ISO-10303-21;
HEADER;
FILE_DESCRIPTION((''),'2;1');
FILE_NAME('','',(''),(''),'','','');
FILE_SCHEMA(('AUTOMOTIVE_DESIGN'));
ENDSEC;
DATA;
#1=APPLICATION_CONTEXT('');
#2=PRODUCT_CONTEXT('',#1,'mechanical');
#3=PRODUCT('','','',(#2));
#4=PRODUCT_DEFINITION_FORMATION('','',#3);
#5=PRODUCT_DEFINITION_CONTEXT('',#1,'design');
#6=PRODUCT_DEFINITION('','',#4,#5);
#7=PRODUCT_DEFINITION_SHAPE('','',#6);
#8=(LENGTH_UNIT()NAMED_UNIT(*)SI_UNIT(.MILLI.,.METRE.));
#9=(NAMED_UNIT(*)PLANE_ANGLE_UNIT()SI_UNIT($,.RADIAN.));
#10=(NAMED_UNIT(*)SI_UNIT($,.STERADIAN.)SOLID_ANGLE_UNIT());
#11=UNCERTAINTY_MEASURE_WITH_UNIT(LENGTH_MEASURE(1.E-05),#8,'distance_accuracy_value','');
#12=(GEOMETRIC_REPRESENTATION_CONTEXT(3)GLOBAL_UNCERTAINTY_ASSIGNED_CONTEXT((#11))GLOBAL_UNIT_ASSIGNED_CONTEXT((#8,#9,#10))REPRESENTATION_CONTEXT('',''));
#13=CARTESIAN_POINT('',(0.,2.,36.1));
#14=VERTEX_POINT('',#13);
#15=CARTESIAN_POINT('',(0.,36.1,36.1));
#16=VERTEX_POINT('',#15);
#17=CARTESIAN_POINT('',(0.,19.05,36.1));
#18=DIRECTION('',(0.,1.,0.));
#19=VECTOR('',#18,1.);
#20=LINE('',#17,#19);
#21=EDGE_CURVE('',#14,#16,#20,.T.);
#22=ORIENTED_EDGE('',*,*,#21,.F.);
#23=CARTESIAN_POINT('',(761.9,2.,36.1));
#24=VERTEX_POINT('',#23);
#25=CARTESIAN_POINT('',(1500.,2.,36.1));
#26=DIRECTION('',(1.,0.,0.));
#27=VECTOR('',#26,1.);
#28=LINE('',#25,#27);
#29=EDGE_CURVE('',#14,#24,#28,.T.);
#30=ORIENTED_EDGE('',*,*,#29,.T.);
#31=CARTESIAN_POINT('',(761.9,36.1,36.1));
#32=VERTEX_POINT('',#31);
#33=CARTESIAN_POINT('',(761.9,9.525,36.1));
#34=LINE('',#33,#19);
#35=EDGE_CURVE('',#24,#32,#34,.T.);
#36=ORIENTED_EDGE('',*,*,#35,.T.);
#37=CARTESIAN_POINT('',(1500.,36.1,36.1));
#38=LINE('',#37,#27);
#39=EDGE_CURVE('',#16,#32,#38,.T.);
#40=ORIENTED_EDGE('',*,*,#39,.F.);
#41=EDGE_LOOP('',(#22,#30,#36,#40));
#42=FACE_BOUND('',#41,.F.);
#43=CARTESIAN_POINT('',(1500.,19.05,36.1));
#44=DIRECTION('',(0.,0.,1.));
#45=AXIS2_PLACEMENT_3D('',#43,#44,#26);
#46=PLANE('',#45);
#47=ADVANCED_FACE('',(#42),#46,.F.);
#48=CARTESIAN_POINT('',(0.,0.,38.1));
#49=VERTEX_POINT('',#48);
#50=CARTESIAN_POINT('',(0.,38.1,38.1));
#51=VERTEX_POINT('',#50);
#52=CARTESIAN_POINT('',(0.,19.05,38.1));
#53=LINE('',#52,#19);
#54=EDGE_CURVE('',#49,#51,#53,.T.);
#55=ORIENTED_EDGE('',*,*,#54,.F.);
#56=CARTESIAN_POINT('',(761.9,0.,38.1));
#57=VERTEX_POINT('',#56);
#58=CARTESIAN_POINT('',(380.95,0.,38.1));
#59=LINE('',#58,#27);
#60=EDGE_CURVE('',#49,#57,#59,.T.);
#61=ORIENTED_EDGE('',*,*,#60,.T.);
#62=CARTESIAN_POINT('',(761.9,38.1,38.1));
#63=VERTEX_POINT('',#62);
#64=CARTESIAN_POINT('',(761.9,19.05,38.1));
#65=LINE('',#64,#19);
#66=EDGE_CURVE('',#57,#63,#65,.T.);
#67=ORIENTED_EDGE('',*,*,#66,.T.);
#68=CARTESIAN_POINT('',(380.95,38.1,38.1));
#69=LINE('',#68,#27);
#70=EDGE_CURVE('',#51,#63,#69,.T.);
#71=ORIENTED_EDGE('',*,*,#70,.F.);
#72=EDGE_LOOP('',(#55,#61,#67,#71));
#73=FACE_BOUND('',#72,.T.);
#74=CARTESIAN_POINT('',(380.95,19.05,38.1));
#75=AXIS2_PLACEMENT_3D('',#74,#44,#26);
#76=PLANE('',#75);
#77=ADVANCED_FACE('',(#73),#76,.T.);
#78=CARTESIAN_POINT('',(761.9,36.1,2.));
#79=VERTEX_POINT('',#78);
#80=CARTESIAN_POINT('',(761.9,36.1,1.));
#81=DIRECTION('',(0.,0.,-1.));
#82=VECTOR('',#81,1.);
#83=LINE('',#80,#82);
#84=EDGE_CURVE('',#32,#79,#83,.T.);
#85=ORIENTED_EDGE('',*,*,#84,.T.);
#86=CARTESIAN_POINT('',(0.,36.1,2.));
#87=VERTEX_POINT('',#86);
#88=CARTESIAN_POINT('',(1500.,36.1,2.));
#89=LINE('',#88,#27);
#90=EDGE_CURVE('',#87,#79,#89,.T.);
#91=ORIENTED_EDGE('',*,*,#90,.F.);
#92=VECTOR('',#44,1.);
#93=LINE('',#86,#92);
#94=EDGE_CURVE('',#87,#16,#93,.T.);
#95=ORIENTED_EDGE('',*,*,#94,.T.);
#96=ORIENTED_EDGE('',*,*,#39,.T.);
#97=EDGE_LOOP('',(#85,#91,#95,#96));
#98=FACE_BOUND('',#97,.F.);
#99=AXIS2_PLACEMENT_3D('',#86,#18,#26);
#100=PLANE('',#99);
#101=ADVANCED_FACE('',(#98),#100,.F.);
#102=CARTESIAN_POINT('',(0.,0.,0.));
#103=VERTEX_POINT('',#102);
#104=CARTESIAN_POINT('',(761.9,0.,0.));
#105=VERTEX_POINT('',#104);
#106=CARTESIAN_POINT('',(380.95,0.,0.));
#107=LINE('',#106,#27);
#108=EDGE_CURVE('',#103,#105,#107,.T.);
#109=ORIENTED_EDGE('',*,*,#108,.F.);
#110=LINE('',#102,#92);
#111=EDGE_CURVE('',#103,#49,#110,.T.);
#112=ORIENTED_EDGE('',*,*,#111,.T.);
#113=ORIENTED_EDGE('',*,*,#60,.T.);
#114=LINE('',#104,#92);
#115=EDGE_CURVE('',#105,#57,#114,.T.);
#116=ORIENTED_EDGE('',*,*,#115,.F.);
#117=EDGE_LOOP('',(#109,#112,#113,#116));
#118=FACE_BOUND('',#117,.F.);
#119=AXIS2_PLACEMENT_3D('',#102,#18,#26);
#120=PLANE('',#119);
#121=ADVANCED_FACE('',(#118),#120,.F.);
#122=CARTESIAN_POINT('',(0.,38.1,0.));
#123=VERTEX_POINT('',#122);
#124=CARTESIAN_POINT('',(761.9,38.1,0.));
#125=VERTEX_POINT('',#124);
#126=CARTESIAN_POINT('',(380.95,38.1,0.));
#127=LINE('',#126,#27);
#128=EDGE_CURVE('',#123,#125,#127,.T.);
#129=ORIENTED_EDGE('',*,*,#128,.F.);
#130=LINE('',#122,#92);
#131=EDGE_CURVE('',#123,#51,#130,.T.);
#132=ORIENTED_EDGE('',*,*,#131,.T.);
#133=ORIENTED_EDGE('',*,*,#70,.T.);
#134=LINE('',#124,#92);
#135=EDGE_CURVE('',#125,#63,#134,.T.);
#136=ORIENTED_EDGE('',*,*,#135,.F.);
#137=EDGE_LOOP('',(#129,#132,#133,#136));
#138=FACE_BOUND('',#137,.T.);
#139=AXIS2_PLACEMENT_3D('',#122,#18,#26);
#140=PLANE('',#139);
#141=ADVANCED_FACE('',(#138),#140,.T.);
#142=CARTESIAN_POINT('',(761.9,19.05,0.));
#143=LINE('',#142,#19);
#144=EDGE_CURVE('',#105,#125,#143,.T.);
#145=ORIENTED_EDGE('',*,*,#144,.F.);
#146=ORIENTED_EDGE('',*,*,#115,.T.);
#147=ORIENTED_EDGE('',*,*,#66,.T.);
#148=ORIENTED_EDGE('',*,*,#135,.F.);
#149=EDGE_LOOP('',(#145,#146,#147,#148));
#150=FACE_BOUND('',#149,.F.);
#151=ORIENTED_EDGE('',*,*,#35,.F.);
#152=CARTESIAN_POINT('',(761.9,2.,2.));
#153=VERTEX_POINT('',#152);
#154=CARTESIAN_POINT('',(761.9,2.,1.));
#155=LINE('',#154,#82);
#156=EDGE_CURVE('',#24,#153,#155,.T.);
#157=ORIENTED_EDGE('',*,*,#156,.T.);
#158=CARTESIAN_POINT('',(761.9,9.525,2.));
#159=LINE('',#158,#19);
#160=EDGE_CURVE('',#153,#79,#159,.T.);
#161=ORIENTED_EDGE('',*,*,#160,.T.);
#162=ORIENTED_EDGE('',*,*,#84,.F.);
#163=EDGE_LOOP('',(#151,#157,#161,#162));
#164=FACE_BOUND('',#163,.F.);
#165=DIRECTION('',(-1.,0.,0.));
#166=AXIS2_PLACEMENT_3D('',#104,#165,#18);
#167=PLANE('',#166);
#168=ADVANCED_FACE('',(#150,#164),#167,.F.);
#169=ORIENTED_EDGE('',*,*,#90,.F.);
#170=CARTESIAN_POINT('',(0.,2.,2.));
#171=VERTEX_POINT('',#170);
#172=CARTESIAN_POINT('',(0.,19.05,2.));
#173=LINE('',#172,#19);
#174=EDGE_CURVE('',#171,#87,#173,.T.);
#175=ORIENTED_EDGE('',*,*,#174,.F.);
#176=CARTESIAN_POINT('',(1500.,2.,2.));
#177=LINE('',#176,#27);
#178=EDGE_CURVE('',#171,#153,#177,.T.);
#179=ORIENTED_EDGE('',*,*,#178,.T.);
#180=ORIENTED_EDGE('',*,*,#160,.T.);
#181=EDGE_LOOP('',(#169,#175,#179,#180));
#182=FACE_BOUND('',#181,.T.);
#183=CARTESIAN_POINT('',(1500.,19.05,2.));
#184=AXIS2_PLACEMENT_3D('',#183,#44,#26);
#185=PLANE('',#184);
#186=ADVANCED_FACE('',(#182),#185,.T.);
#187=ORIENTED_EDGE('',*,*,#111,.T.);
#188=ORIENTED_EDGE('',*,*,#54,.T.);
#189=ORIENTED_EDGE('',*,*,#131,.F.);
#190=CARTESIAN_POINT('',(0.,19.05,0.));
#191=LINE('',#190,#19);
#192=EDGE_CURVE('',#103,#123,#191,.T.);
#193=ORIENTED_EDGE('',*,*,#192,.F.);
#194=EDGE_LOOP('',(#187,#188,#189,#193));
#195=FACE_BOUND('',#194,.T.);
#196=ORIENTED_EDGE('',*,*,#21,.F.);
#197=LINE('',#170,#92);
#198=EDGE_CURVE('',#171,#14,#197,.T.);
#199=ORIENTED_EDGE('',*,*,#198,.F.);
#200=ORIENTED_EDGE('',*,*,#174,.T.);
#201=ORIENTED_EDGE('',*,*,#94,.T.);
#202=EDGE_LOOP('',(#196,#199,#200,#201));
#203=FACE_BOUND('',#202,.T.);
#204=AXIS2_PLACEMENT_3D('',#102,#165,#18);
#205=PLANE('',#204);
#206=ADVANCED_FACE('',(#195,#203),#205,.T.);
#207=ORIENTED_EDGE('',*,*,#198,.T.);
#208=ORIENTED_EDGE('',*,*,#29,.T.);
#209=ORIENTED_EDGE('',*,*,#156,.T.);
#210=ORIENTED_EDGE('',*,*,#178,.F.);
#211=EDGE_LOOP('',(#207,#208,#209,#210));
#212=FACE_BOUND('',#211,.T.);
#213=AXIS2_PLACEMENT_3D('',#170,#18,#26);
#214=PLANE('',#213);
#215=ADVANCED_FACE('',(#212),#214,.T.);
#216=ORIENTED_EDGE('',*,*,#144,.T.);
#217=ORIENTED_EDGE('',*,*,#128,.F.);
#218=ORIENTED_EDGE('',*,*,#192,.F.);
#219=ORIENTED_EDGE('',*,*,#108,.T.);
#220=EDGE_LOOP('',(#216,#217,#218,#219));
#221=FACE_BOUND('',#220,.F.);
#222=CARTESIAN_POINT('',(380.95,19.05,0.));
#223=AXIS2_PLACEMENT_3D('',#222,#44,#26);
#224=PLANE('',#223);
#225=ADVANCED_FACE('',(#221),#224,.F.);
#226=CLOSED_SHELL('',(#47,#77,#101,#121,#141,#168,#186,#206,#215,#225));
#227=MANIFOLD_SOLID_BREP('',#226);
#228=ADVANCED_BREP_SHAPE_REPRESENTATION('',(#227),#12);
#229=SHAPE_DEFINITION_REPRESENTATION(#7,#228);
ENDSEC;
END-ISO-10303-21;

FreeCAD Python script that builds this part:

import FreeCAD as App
import Part
import Sketcher
from FreeCAD import Vector
Q = App.Units.Quantity

doc = App.newDocument("Part")
body = doc.addObject("PartDesign::Body", "Body")

# Sketch on XY plane
sketch1 = body.newObject("Sketcher::SketchObject", "Sketch")
sketch1.AttachmentSupport = (doc.getObject("XY_Plane"), [""])
sketch1.MapMode = "FlatFace"
sketch1.AttachmentOffset = App.Placement(Vector(0, 0, 2), App.Rotation())
sketch1.addGeometry([
    Part.LineSegment(Vector(0, 36, 0), Vector(0, 2, 0)),
    Part.LineSegment(Vector(0, 2, 0), Vector(3000, 2, 0)),
    Part.LineSegment(Vector(3000, 2, 0), Vector(3000, 36, 0)),
    Part.LineSegment(Vector(3000, 36, 0), Vector(0, 36, 0)),
], False)
sketch1.addConstraint([
    Sketcher.Constraint("Coincident", 0, 2, 1, 1),
    Sketcher.Constraint("Coincident", 1, 2, 2, 1),
    Sketcher.Constraint("Coincident", 2, 2, 3, 1),
    Sketcher.Constraint("Coincident", 3, 2, 0, 1),
    Sketcher.Constraint("Vertical", 0),
    Sketcher.Constraint("Horizontal", 1),
    Sketcher.Constraint("Vertical", 2),
    Sketcher.Constraint("Horizontal", 3),
    Sketcher.Constraint("PointOnObject", 0, 2, -2),
    Sketcher.Constraint("DistanceX", 1, 1, 1, 2, Q("3000 mm")),
    Sketcher.Constraint("DistanceY", 0, 2, 0, 1, Q("34.1 mm")),
    Sketcher.Constraint("DistanceY", -1, 1, 0, 2, Q("2 mm")),
])
pad1 = body.newObject("PartDesign::Pad", "Pad")
pad1.Profile = sketch1
pad1.Length = 34.1
body2 = doc.addObject("PartDesign::Body", "Body001")

# Sketch on XY plane
sketch2 = body2.newObject("Sketcher::SketchObject", "Sketch001")
sketch2.AttachmentSupport = (doc.getObject("XY_Plane001"), [""])
sketch2.MapMode = "FlatFace"
sketch2.addGeometry([
    Part.LineSegment(Vector(0, 38, 0), Vector(0, 0, 0)),
    Part.LineSegment(Vector(0, 0, 0), Vector(762, 0, 0)),
    Part.LineSegment(Vector(762, 0, 0), Vector(762, 38, 0)),
    Part.LineSegment(Vector(762, 38, 0), Vector(0, 38, 0)),
], False)
sketch2.addConstraint([
    Sketcher.Constraint("Coincident", 0, 2, 1, 1),
    Sketcher.Constraint("Coincident", 1, 2, 2, 1),
    Sketcher.Constraint("Coincident", 2, 2, 3, 1),
    Sketcher.Constraint("Coincident", 3, 2, 0, 1),
    Sketcher.Constraint("Vertical", 0),
    Sketcher.Constraint("Horizontal", 1),
    Sketcher.Constraint("Vertical", 2),
    Sketcher.Constraint("Horizontal", 3),
    Sketcher.Constraint("Coincident", 0, 2, -1, 1),
    Sketcher.Constraint("DistanceX", 1, 1, 1, 2, Q("761.9 mm")),
    Sketcher.Constraint("DistanceY", 0, 2, 0, 1, Q("38.1 mm")),
])
pad2 = body2.newObject("PartDesign::Pad", "Pad001")
pad2.Profile = sketch2
pad2.Length = 38.1
doc.recompute()

boolean = body2.newObject("PartDesign::Boolean", "Boolean")
boolean.Type = "Cut"
boolean.addObjects([body])

doc.recompute()
